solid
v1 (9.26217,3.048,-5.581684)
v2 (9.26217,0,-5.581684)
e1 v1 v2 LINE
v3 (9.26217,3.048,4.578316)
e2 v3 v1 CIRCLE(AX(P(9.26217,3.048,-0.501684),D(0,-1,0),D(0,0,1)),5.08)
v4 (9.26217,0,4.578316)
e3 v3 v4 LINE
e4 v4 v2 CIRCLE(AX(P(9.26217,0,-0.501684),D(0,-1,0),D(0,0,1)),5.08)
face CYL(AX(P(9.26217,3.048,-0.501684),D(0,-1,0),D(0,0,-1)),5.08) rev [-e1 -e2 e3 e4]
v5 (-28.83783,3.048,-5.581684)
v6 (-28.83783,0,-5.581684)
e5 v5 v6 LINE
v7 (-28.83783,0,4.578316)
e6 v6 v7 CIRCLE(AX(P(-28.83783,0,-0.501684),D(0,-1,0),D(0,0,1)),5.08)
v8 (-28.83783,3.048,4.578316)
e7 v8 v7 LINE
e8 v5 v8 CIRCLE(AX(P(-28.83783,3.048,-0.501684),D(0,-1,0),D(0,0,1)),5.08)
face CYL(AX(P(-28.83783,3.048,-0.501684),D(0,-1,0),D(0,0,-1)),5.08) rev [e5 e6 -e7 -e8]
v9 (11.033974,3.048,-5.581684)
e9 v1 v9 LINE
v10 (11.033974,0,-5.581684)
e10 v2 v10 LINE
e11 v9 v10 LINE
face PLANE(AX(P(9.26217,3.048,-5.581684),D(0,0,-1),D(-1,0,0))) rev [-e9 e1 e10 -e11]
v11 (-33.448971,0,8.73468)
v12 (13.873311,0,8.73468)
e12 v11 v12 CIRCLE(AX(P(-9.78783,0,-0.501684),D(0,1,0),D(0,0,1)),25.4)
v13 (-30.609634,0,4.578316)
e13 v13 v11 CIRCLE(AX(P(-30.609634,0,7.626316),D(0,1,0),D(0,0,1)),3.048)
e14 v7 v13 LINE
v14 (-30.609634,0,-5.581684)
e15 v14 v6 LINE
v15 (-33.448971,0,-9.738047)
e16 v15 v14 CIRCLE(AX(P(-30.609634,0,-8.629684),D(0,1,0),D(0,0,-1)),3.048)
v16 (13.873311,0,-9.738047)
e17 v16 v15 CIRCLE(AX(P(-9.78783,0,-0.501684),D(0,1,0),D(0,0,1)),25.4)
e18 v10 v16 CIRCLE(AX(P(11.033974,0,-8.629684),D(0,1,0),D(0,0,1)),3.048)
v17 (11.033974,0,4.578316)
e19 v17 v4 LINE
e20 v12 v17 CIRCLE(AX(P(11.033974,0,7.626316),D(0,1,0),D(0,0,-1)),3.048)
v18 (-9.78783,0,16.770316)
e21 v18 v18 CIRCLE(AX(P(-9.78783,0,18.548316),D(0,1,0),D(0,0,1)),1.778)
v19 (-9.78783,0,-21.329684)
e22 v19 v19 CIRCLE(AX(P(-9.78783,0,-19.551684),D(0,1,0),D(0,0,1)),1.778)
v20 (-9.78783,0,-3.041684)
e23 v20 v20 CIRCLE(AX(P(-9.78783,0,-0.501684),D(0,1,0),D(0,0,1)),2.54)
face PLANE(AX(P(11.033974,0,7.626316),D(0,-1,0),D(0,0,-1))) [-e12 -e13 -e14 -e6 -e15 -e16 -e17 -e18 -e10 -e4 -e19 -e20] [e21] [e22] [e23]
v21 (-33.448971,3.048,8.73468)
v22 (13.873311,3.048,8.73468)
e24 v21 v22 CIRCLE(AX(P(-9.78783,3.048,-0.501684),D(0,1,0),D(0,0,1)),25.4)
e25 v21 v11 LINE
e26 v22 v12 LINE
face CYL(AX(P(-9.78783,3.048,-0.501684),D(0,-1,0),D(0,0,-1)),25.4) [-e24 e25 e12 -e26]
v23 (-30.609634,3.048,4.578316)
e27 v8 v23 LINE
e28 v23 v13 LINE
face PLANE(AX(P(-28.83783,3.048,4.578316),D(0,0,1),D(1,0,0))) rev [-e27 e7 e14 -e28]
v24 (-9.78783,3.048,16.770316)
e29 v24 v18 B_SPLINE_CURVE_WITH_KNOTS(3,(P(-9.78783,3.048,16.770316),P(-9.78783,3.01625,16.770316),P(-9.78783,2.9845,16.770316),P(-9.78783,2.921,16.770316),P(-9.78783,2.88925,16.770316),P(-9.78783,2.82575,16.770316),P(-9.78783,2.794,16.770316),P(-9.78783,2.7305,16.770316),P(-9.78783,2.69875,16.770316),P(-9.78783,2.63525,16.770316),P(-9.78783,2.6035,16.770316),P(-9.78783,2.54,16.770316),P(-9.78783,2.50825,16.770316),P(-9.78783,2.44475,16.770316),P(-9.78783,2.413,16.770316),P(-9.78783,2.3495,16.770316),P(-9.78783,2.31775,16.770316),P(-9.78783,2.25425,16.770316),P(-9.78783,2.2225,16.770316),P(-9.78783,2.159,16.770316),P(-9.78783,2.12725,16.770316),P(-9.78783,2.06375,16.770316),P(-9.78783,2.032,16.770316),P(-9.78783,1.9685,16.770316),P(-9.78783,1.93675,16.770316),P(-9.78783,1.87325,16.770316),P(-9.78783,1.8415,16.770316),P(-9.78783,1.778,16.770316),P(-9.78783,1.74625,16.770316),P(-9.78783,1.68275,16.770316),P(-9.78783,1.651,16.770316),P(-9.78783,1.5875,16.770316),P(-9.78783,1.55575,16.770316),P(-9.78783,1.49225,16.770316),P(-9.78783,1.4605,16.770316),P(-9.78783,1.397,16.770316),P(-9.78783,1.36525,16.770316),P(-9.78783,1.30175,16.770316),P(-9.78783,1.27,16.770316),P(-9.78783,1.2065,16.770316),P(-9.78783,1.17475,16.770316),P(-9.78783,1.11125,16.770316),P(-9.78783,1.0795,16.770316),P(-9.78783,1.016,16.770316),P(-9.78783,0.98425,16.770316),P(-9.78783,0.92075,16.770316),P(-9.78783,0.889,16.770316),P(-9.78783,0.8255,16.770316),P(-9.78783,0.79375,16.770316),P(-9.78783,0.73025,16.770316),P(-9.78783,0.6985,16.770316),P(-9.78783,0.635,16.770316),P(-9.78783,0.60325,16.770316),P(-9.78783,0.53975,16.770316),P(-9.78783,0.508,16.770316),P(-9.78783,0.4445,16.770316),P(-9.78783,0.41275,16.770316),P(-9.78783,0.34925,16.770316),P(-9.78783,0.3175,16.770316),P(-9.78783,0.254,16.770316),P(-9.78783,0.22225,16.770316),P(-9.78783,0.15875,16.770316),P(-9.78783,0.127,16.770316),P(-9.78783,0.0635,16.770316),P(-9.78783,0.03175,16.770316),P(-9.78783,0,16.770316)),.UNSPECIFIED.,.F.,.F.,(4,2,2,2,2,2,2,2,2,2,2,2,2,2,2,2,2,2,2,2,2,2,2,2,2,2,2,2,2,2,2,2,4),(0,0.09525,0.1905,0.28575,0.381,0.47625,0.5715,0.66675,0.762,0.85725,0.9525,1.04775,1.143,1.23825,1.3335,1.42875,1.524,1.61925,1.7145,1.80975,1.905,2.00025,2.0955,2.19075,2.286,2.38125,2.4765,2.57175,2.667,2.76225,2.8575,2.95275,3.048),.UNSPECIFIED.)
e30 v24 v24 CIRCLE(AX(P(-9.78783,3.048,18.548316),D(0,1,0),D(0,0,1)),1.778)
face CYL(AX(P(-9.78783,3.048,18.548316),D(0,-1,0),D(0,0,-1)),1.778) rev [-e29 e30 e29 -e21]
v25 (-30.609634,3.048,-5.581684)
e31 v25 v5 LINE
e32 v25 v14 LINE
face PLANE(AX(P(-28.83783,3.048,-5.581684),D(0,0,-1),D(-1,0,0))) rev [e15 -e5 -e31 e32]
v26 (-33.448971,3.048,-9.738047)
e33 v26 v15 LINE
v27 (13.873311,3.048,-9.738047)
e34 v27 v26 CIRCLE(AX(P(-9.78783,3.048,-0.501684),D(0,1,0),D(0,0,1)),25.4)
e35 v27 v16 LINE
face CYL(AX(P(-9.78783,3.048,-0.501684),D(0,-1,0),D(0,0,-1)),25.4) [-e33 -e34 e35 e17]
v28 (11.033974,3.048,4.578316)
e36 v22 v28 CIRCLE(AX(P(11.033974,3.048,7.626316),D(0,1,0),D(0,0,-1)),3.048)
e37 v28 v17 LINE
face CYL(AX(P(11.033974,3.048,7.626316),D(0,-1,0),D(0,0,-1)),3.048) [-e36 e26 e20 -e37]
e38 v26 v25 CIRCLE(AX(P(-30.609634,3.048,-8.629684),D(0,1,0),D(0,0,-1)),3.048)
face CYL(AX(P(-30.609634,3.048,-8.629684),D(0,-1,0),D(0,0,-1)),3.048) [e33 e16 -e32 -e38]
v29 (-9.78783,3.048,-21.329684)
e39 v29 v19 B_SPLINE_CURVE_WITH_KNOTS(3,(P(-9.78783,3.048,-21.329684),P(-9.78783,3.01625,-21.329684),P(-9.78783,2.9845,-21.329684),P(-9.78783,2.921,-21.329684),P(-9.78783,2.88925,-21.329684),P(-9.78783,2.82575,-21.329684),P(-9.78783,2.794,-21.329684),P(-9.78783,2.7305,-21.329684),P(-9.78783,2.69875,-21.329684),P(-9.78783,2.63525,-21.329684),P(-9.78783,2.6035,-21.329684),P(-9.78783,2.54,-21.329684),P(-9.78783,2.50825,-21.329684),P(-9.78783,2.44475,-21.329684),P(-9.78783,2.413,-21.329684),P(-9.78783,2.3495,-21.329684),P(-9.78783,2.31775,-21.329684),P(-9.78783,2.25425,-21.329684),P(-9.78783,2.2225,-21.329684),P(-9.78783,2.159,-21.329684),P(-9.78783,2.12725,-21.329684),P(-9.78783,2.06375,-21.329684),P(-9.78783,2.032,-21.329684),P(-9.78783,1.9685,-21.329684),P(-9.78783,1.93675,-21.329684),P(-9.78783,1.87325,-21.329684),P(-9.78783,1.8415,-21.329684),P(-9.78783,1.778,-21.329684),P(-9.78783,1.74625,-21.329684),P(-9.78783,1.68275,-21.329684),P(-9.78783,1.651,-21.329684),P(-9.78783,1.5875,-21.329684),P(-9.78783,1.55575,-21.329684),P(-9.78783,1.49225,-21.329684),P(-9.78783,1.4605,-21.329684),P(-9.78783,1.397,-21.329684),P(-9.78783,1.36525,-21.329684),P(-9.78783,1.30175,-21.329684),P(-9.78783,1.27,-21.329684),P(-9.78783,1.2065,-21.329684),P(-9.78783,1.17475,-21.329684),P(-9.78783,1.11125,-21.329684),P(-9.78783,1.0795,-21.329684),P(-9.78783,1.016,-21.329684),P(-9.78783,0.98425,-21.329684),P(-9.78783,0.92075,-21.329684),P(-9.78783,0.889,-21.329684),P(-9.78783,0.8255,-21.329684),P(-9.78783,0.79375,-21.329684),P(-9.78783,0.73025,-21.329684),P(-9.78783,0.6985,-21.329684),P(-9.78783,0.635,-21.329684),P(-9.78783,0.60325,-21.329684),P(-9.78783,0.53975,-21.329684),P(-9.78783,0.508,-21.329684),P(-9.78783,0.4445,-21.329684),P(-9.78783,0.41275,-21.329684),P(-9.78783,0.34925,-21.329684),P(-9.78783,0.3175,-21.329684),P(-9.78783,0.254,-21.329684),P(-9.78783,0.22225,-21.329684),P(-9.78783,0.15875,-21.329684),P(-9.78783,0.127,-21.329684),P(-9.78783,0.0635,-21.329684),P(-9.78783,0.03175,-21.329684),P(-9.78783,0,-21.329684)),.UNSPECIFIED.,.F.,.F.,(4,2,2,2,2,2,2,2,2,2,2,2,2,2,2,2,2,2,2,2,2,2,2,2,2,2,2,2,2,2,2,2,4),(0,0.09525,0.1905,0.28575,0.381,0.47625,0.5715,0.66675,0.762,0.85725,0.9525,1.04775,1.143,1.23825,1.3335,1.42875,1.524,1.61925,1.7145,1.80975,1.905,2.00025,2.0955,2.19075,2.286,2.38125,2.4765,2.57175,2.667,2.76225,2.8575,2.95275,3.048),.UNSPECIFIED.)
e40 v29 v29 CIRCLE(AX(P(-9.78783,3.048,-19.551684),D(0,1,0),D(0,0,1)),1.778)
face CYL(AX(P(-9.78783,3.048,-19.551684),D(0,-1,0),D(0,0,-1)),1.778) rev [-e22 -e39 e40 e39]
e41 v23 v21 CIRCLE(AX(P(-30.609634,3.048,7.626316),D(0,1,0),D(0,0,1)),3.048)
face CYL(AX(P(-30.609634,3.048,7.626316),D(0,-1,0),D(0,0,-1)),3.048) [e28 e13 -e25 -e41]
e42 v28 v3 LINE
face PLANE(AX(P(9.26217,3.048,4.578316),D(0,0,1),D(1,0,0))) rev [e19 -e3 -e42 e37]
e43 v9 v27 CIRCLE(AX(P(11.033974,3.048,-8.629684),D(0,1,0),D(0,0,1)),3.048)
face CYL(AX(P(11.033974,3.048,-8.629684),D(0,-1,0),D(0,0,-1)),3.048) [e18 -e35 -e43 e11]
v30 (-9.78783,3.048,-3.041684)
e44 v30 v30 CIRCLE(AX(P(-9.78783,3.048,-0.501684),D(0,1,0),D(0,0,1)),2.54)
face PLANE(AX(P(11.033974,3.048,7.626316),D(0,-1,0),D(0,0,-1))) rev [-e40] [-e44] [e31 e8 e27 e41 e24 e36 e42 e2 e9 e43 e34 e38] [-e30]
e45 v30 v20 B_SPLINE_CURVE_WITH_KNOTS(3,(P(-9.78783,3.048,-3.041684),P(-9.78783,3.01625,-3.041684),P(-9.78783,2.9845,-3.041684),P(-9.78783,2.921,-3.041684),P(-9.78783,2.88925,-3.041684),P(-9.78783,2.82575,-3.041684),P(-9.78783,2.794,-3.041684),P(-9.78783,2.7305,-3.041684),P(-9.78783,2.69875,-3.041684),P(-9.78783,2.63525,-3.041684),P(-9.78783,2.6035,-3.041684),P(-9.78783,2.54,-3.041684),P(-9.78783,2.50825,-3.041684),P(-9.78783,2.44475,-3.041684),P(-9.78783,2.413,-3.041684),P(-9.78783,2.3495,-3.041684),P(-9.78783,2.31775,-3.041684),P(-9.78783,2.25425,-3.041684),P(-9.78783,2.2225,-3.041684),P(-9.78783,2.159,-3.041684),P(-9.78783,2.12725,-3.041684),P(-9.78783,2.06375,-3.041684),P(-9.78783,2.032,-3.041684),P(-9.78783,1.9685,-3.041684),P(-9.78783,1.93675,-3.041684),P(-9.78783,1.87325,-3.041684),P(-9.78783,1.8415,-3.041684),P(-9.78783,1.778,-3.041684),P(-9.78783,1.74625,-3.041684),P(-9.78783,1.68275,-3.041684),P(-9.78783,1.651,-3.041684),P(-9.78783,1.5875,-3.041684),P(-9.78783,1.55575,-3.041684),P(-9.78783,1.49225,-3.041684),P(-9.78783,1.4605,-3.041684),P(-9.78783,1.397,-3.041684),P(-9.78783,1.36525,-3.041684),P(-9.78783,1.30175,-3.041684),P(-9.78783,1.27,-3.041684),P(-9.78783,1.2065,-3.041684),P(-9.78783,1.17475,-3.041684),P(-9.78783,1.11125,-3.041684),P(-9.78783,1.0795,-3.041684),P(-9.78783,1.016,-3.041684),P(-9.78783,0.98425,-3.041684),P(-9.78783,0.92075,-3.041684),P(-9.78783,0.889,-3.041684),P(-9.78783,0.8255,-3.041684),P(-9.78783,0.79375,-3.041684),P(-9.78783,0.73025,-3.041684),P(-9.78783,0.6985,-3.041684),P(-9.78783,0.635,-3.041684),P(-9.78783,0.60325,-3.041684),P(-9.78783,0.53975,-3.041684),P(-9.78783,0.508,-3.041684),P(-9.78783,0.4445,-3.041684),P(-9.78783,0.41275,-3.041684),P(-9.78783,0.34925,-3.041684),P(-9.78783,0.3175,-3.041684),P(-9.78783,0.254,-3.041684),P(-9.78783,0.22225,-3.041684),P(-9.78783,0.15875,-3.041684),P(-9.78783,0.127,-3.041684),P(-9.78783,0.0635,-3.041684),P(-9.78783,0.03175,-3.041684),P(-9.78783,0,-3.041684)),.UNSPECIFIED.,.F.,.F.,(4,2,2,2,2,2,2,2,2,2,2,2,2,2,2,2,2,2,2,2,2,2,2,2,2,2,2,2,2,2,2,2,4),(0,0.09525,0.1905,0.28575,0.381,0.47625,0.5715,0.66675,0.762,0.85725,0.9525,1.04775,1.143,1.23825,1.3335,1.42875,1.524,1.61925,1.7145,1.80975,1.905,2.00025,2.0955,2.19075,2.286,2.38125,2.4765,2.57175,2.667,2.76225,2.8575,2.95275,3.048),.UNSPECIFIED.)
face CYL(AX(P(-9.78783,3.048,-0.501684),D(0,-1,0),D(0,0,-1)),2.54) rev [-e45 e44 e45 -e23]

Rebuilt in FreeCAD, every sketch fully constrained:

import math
import FreeCAD as App
import Part
import Sketcher
Q = App.Units.Quantity

doc = App.newDocument("Part")
body = doc.addObject("PartDesign::Body", "Body")

# Sketch on XZ plane
sketch1 = body.newObject("Sketcher::SketchObject", "Sketch")
sketch1.AttachmentSupport = (doc.getObject("XZ_Plane"), [""])
sketch1.MapMode = "FlatFace"
sketch1.addGeometry([
    Part.LineSegment(App.Vector(-30.609634, -5.581684, 0), App.Vector(-28.83783, -5.581684, 0)),  # 0
    Part.ArcOfCircle(Part.Circle(App.Vector(-28.83783, -0.501684, 0), App.Vector(0, 0, 1), 5.08), math.radians(-90), math.radians(90)),  # 1
    Part.LineSegment(App.Vector(-28.83783, 4.578316, 0), App.Vector(-30.609634, 4.578316, 0)),  # 2
    Part.ArcOfCircle(Part.Circle(App.Vector(-30.609634, 7.626316, 0), App.Vector(0, 0, 1), 3.048), math.radians(158.676314), math.radians(270)),  # 3
    Part.ArcOfCircle(Part.Circle(App.Vector(-9.78783, -0.501684, 0), App.Vector(0, 0, 1), 25.4), math.radians(21.323686), math.radians(158.676314)),  # 4
    Part.ArcOfCircle(Part.Circle(App.Vector(11.033974, 7.626316, 0), App.Vector(0, 0, 1), 3.048), math.radians(-90), math.radians(21.323686)),  # 5
    Part.LineSegment(App.Vector(11.033974, 4.578316, 0), App.Vector(9.26217, 4.578316, 0)),  # 6
    Part.ArcOfCircle(Part.Circle(App.Vector(9.26217, -0.501684, 0), App.Vector(0, 0, 1), 5.08), math.radians(90), math.radians(270)),  # 7
    Part.LineSegment(App.Vector(9.26217, -5.581684, 0), App.Vector(11.033974, -5.581684, 0)),  # 8
    Part.ArcOfCircle(Part.Circle(App.Vector(11.033974, -8.629684, 0), App.Vector(0, 0, 1), 3.048), math.radians(-21.323686), math.radians(90)),  # 9
    Part.ArcOfCircle(Part.Circle(App.Vector(-9.78783, -0.501684, 0), App.Vector(0, 0, 1), 25.4), math.radians(-158.676314), math.radians(-21.323686)),  # 10
    Part.ArcOfCircle(Part.Circle(App.Vector(-30.609634, -8.629684, 0), App.Vector(0, 0, 1), 3.048), math.radians(90), math.radians(201.323686)),  # 11
    Part.Circle(App.Vector(-9.78783, 18.548316, 0), App.Vector(0, 0, 1), 1.778),  # 12
    Part.Circle(App.Vector(-9.78783, -0.501684, 0), App.Vector(0, 0, 1), 2.54),  # 13
    Part.Circle(App.Vector(-9.78783, -19.551684, 0), App.Vector(0, 0, 1), 1.778),  # 14
], False)
sketch1.addConstraint([
    Sketcher.Constraint("Tangent", 0, 2, 1, 1),
    Sketcher.Constraint("Tangent", 1, 2, 2, 1),
    Sketcher.Constraint("Tangent", 2, 2, 3, 2),
    Sketcher.Constraint("Tangent", 3, 1, 4, 2),
    Sketcher.Constraint("Tangent", 4, 1, 5, 2),
    Sketcher.Constraint("Tangent", 5, 1, 6, 1),
    Sketcher.Constraint("Tangent", 6, 2, 7, 1),
    Sketcher.Constraint("Tangent", 7, 2, 8, 1),
    Sketcher.Constraint("Tangent", 8, 2, 9, 2),
    Sketcher.Constraint("Tangent", 9, 1, 10, 2),
    Sketcher.Constraint("Tangent", 10, 1, 11, 2),
    Sketcher.Constraint("Tangent", 11, 1, 0, 1),
    Sketcher.Constraint("Horizontal", 0),
    Sketcher.Constraint("Horizontal", 2),
    Sketcher.Constraint("Horizontal", 6),
    Sketcher.Constraint("Horizontal", 8),
    Sketcher.Constraint("Coincident", 10, 3, 4, 3),
    Sketcher.Constraint("Coincident", 13, 3, 4, 3),
    Sketcher.Constraint("Equal", 3, 5),
    Sketcher.Constraint("Equal", 1, 7),
    Sketcher.Constraint("Equal", 5, 9),
    Sketcher.Constraint("Equal", 4, 10),
    Sketcher.Constraint("Equal", 9, 11),
    Sketcher.Constraint("Equal", 12, 14),
    Sketcher.Constraint("Horizontal", 1, 3, 4, 3),
    Sketcher.Constraint("Horizontal", 3, 3, 5, 3),
    Sketcher.Constraint("Vertical", 10, 3, 12, 3),
    Sketcher.Constraint("Vertical", 13, 3, 14, 3),
    Sketcher.Constraint("Equal", 2, 6),
    Sketcher.Constraint("Radius", 4, Q("1 in")),
    Sketcher.Constraint("Diameter", 13, Q("0.2 in")),
    Sketcher.Constraint("Radius", 1, Q("0.2 in")),
    Sketcher.Constraint("Diameter", 12, Q("0.14 in")),
    Sketcher.Constraint("Radius", 3, Q("0.12 in")),
    Sketcher.Constraint("DistanceX", 1, 3, 7, 3, Q("1.5 in")),
    Sketcher.Constraint("DistanceY", 4, 3, 12, 3, Q("0.75 in")),
    Sketcher.Constraint("DistanceY", 14, 3, 4, 3, Q("0.75 in")),
    Sketcher.Constraint("DistanceX", 1, 3, -1, 1, Q("28.83783 mm")),
    Sketcher.Constraint("DistanceY", -1, 1, 3, 1, Q("8.73468 mm")),
])
pad1 = body.newObject("PartDesign::Pad", "Pad")
pad1.Profile = sketch1
pad1.Length = Q("0.12 in")
pad1.Reversed = True

doc.recompute()
